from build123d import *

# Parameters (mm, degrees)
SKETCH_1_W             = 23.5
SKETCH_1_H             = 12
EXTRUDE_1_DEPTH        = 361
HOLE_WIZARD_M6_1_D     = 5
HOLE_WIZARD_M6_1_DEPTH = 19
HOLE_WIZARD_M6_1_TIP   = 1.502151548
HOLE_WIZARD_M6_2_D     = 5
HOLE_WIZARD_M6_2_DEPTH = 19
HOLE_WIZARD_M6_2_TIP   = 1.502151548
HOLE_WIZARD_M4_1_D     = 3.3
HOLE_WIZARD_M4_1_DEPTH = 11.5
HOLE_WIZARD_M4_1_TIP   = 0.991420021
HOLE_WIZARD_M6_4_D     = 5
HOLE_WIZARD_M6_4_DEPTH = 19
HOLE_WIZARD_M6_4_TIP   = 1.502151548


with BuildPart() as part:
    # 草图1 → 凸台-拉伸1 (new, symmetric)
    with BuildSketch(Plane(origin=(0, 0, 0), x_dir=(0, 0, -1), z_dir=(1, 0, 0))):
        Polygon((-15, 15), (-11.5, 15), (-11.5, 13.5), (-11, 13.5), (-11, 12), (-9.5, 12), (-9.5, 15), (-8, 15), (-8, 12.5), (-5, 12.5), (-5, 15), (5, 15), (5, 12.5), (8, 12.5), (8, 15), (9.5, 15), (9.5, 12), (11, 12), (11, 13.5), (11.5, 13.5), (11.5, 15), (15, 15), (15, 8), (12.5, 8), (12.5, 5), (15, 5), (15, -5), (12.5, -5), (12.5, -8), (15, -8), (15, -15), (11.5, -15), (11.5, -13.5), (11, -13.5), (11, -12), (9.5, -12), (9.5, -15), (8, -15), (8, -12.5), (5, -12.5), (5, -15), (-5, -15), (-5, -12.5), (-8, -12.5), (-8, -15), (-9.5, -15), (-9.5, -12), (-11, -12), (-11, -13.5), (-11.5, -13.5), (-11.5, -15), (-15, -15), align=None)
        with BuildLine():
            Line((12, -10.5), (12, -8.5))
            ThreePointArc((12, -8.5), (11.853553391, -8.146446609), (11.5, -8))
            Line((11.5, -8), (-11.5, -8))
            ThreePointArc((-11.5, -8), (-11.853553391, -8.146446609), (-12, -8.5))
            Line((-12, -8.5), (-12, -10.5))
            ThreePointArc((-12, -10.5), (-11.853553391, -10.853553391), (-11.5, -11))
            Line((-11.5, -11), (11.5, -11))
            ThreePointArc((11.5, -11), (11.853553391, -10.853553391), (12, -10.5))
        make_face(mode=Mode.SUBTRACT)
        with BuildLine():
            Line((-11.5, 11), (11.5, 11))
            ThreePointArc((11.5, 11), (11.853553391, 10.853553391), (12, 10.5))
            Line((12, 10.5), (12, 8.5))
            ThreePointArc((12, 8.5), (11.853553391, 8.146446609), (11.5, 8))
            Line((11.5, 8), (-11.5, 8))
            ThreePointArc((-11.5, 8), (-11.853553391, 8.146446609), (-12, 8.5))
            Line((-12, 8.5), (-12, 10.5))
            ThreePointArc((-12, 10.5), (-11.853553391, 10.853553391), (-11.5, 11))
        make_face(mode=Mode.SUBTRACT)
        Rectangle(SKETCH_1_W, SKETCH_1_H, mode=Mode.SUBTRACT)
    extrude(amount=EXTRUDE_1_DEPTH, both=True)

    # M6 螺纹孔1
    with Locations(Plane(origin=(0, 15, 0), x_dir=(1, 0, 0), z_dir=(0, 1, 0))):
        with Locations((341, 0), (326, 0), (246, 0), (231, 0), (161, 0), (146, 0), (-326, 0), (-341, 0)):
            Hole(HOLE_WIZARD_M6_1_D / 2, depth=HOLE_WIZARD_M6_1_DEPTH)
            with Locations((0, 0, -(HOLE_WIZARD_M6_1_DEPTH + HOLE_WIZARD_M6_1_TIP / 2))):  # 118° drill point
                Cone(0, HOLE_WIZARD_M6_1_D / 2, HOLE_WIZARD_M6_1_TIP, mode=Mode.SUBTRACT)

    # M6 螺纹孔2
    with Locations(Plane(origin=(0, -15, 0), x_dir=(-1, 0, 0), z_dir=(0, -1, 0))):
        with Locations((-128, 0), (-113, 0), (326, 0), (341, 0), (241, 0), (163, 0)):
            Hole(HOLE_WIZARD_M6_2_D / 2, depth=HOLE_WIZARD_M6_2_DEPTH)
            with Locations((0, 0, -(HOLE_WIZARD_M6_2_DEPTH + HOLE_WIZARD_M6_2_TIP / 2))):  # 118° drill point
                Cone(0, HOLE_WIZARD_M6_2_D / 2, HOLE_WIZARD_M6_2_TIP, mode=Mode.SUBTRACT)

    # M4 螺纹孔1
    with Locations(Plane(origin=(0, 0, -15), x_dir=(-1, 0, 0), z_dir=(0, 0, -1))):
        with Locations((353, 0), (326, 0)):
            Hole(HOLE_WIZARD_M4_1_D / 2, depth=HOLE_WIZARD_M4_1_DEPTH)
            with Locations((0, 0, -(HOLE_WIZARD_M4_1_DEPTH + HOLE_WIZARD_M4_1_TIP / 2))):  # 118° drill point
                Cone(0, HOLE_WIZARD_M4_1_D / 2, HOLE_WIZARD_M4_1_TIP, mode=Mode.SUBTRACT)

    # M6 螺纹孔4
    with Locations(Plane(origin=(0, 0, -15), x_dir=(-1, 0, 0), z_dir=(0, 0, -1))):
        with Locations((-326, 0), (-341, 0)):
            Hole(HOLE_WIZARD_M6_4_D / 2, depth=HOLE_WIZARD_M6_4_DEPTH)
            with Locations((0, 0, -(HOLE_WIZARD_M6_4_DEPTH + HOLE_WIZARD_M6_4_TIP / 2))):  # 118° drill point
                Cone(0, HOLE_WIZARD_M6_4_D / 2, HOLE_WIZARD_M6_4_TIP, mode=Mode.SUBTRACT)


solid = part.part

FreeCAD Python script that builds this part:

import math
import FreeCAD as App
import Part
import Sketcher
Q = App.Units.Quantity


def add_polygon(sketch, points):
    """Adds a closed chain of lines whose ends are joined by coincident constraints."""
    first, n = sketch.GeometryCount, len(points)
    for a, b in zip(points, points[1:] + points[:1]):
        sketch.addGeometry(Part.LineSegment(App.Vector(*a, 0), App.Vector(*b, 0)), False)
    for i in range(n):
        sketch.addConstraint(Sketcher.Constraint("Coincident", first + i, 2, first + (i + 1) % n, 1))

doc = App.newDocument("Part")
body = doc.addObject("PartDesign::Body", "Body")

sketch1 = body.newObject("Sketcher::SketchObject", "Sketch")
sketch1.AttachmentSupport = (doc.getObject("YZ_Plane"), [""])
sketch1.MapMode = "FlatFace"
add_polygon(sketch1, [(15, 11.5), (15, 15), (-15, 15), (-15, 11.5), (-13.5, 11.5), (-13.5, 11), (-12, 11), (-12, 9.5), (-15, 9.5), (-15, 8), (-12.5, 8), (-12.5, 5), (-15, 5), (-15, -5), (-12.5, -5), (-12.5, -8), (-15, -8), (-15, -9.5), (-12, -9.5), (-12, -11), (-13.5, -11), (-13.5, -11.5), (-15, -11.5), (-15, -15), (-8, -15), (-8, -12.5), (-5, -12.5), (-5, -15), (5, -15), (5, -12.5), (8, -12.5), (8, -15), (15, -15), (15, -11.5), (13.5, -11.5), (13.5, -11), (12, -11), (12, -9.5), (15, -9.5), (15, -8), (12.5, -8), (12.5, -5), (15, -5), (15, 5), (12.5, 5), (12.5, 8), (15, 8), (15, 9.5), (12, 9.5), (12, 11), (13.5, 11), (13.5, 11.5)])
sketch1.addGeometry(Part.ArcOfCircle(Part.Circle(App.Vector(-10.5, -11.5, 0), App.Vector(0, 0, 1), 0.5), math.radians(180), math.radians(270)), False)
sketch1.addGeometry(Part.LineSegment(App.Vector(-11, -11.5, 0), App.Vector(-11, 11.5, 0)), False)
sketch1.addGeometry(Part.ArcOfCircle(Part.Circle(App.Vector(-10.5, 11.5, 0), App.Vector(0, 0, 1), 0.5), math.radians(90), math.radians(180)), False)
sketch1.addGeometry(Part.LineSegment(App.Vector(-10.5, 12, 0), App.Vector(-8.5, 12, 0)), False)
sketch1.addGeometry(Part.ArcOfCircle(Part.Circle(App.Vector(-8.5, 11.5, 0), App.Vector(0, 0, 1), 0.5), math.radians(0), math.radians(90)), False)
sketch1.addGeometry(Part.LineSegment(App.Vector(-8, 11.5, 0), App.Vector(-8, -11.5, 0)), False)
sketch1.addGeometry(Part.ArcOfCircle(Part.Circle(App.Vector(-8.5, -11.5, 0), App.Vector(0, 0, 1), 0.5), math.radians(-90), math.radians(0)), False)
sketch1.addGeometry(Part.LineSegment(App.Vector(-8.5, -12, 0), App.Vector(-10.5, -12, 0)), False)
add_polygon(sketch1, [(-6, 11.75), (6, 11.75), (6, -11.75), (-6, -11.75)])
sketch1.addGeometry(Part.LineSegment(App.Vector(11, 11.5, 0), App.Vector(11, -11.5, 0)), False)
sketch1.addGeometry(Part.ArcOfCircle(Part.Circle(App.Vector(10.5, -11.5, 0), App.Vector(0, 0, 1), 0.5), math.radians(-90), math.radians(0)), False)
sketch1.addGeometry(Part.LineSegment(App.Vector(10.5, -12, 0), App.Vector(8.5, -12, 0)), False)
sketch1.addGeometry(Part.ArcOfCircle(Part.Circle(App.Vector(8.5, -11.5, 0), App.Vector(0, 0, 1), 0.5), math.radians(180), math.radians(270)), False)
sketch1.addGeometry(Part.LineSegment(App.Vector(8, -11.5, 0), App.Vector(8, 11.5, 0)), False)
sketch1.addGeometry(Part.ArcOfCircle(Part.Circle(App.Vector(8.5, 11.5, 0), App.Vector(0, 0, 1), 0.5), math.radians(90), math.radians(180)), False)
sketch1.addGeometry(Part.LineSegment(App.Vector(8.5, 12, 0), App.Vector(10.5, 12, 0)), False)
sketch1.addGeometry(Part.ArcOfCircle(Part.Circle(App.Vector(10.5, 11.5, 0), App.Vector(0, 0, 1), 0.5), math.radians(0), math.radians(90)), False)
sketch1.addConstraint(Sketcher.Constraint("Tangent", 52, 1, 53, 1))
sketch1.addConstraint(Sketcher.Constraint("Tangent", 53, 2, 54, 2))
sketch1.addConstraint(Sketcher.Constraint("Tangent", 54, 1, 55, 1))
sketch1.addConstraint(Sketcher.Constraint("Tangent", 55, 2, 56, 2))
sketch1.addConstraint(Sketcher.Constraint("Tangent", 56, 1, 57, 1))
sketch1.addConstraint(Sketcher.Constraint("Tangent", 57, 2, 58, 2))
sketch1.addConstraint(Sketcher.Constraint("Tangent", 58, 1, 59, 1))
sketch1.addConstraint(Sketcher.Constraint("Tangent", 59, 2, 52, 2))
sketch1.addConstraint(Sketcher.Constraint("Tangent", 64, 2, 65, 2))
sketch1.addConstraint(Sketcher.Constraint("Tangent", 65, 1, 66, 1))
sketch1.addConstraint(Sketcher.Constraint("Tangent", 66, 2, 67, 2))
sketch1.addConstraint(Sketcher.Constraint("Tangent", 67, 1, 68, 1))
sketch1.addConstraint(Sketcher.Constraint("Tangent", 68, 2, 69, 2))
sketch1.addConstraint(Sketcher.Constraint("Tangent", 69, 1, 70, 1))
sketch1.addConstraint(Sketcher.Constraint("Tangent", 70, 2, 71, 2))
sketch1.addConstraint(Sketcher.Constraint("Tangent", 71, 1, 64, 1))
sketch1.addConstraint(Sketcher.Constraint("Vertical", 0))
sketch1.addConstraint(Sketcher.Constraint("Horizontal", 1))
sketch1.addConstraint(Sketcher.Constraint("Vertical", 2))
sketch1.addConstraint(Sketcher.Constraint("Horizontal", 3))
sketch1.addConstraint(Sketcher.Constraint("Vertical", 4))
sketch1.addConstraint(Sketcher.Constraint("Horizontal", 5))
sketch1.addConstraint(Sketcher.Constraint("Vertical", 6))
sketch1.addConstraint(Sketcher.Constraint("Horizontal", 7))
sketch1.addConstraint(Sketcher.Constraint("Vertical", 8))
sketch1.addConstraint(Sketcher.Constraint("Horizontal", 9))
sketch1.addConstraint(Sketcher.Constraint("Vertical", 10))
sketch1.addConstraint(Sketcher.Constraint("Horizontal", 11))
sketch1.addConstraint(Sketcher.Constraint("Vertical", 12))
sketch1.addConstraint(Sketcher.Constraint("Horizontal", 13))
sketch1.addConstraint(Sketcher.Constraint("Vertical", 14))
sketch1.addConstraint(Sketcher.Constraint("Horizontal", 15))
sketch1.addConstraint(Sketcher.Constraint("Vertical", 16))
sketch1.addConstraint(Sketcher.Constraint("Horizontal", 17))
sketch1.addConstraint(Sketcher.Constraint("Vertical", 18))
sketch1.addConstraint(Sketcher.Constraint("Horizontal", 19))
sketch1.addConstraint(Sketcher.Constraint("Vertical", 20))
sketch1.addConstraint(Sketcher.Constraint("Horizontal", 21))
sketch1.addConstraint(Sketcher.Constraint("Vertical", 22))
sketch1.addConstraint(Sketcher.Constraint("Horizontal", 23))
sketch1.addConstraint(Sketcher.Constraint("Vertical", 24))
sketch1.addConstraint(Sketcher.Constraint("Horizontal", 25))
sketch1.addConstraint(Sketcher.Constraint("Vertical", 26))
sketch1.addConstraint(Sketcher.Constraint("Horizontal", 27))
sketch1.addConstraint(Sketcher.Constraint("Vertical", 28))
sketch1.addConstraint(Sketcher.Constraint("Horizontal", 29))
sketch1.addConstraint(Sketcher.Constraint("Vertical", 30))
sketch1.addConstraint(Sketcher.Constraint("Horizontal", 31))
sketch1.addConstraint(Sketcher.Constraint("Vertical", 32))
sketch1.addConstraint(Sketcher.Constraint("Horizontal", 33))
sketch1.addConstraint(Sketcher.Constraint("Vertical", 34))
sketch1.addConstraint(Sketcher.Constraint("Horizontal", 35))
sketch1.addConstraint(Sketcher.Constraint("Vertical", 36))
sketch1.addConstraint(Sketcher.Constraint("Horizontal", 37))
sketch1.addConstraint(Sketcher.Constraint("Vertical", 38))
sketch1.addConstraint(Sketcher.Constraint("Horizontal", 39))
sketch1.addConstraint(Sketcher.Constraint("Vertical", 40))
sketch1.addConstraint(Sketcher.Constraint("Horizontal", 41))
sketch1.addConstraint(Sketcher.Constraint("Vertical", 42))
sketch1.addConstraint(Sketcher.Constraint("Horizontal", 43))
sketch1.addConstraint(Sketcher.Constraint("Vertical", 44))
sketch1.addConstraint(Sketcher.Constraint("Horizontal", 45))
sketch1.addConstraint(Sketcher.Constraint("Vertical", 46))
sketch1.addConstraint(Sketcher.Constraint("Horizontal", 47))
sketch1.addConstraint(Sketcher.Constraint("Vertical", 48))
sketch1.addConstraint(Sketcher.Constraint("Horizontal", 49))
sketch1.addConstraint(Sketcher.Constraint("Vertical", 50))
sketch1.addConstraint(Sketcher.Constraint("Horizontal", 51))
sketch1.addConstraint(Sketcher.Constraint("Vertical", 53))
sketch1.addConstraint(Sketcher.Constraint("Horizontal", 55))
sketch1.addConstraint(Sketcher.Constraint("Vertical", 57))
sketch1.addConstraint(Sketcher.Constraint("Horizontal", 59))
sketch1.addConstraint(Sketcher.Constraint("Horizontal", 60))
sketch1.addConstraint(Sketcher.Constraint("Vertical", 61))
sketch1.addConstraint(Sketcher.Constraint("Horizontal", 62))
sketch1.addConstraint(Sketcher.Constraint("Vertical", 63))
sketch1.addConstraint(Sketcher.Constraint("Vertical", 64))
sketch1.addConstraint(Sketcher.Constraint("Horizontal", 66))
sketch1.addConstraint(Sketcher.Constraint("Vertical", 68))
sketch1.addConstraint(Sketcher.Constraint("Horizontal", 70))
sketch1.addConstraint(Sketcher.Constraint("Equal", 52, 54))
sketch1.addConstraint(Sketcher.Constraint("Equal", 54, 56))
sketch1.addConstraint(Sketcher.Constraint("Equal", 56, 58))
sketch1.addConstraint(Sketcher.Constraint("Equal", 58, 65))
sketch1.addConstraint(Sketcher.Constraint("Equal", 65, 67))
sketch1.addConstraint(Sketcher.Constraint("Equal", 67, 69))
sketch1.addConstraint(Sketcher.Constraint("Equal", 69, 71))
sketch1.addConstraint(Sketcher.Constraint("Symmetric", 54, 3, 65, 3, -1, 1))
sketch1.addConstraint(Sketcher.Constraint("Symmetric", 58, 3, 69, 3, -1, 1))
sketch1.addConstraint(Sketcher.Constraint("Symmetric", 0, 2, 22, 2, -1, 1))
sketch1.addConstraint(Sketcher.Constraint("Symmetric", 1, 2, 31, 2, -1, 1))
sketch1.addConstraint(Sketcher.Constraint("Symmetric", 3, 2, 33, 2, -1, 1))
sketch1.addConstraint(Sketcher.Constraint("Symmetric", 5, 2, 35, 2, -1, 1))
sketch1.addConstraint(Sketcher.Constraint("Symmetric", 7, 2, 37, 2, -1, 1))
sketch1.addConstraint(Sketcher.Constraint("Symmetric", 9, 2, 39, 2, -1, 1))
sketch1.addConstraint(Sketcher.Constraint("Symmetric", 11, 2, 41, 2, -1, 1))
sketch1.addConstraint(Sketcher.Constraint("Symmetric", 13, 2, 43, 2, -1, 1))
sketch1.addConstraint(Sketcher.Constraint("Symmetric", 15, 2, 45, 2, -1, 1))
sketch1.addConstraint(Sketcher.Constraint("Symmetric", 17, 2, 47, 2, -1, 1))
sketch1.addConstraint(Sketcher.Constraint("Symmetric", 19, 2, 49, 2, -1, 1))
sketch1.addConstraint(Sketcher.Constraint("Symmetric", 60, 2, 62, 2, -1, 1))
sketch1.addConstraint(Sketcher.Constraint("Symmetric", 25, 2, 28, 2, -2))
sketch1.addConstraint(Sketcher.Constraint("Symmetric", 21, 2, 32, 2, -2))
sketch1.addConstraint(Sketcher.Constraint("Symmetric", 19, 2, 34, 2, -2))
sketch1.addConstraint(Sketcher.Constraint("Symmetric", 17, 2, 36, 2, -2))
sketch1.addConstraint(Sketcher.Constraint("Symmetric", 15, 2, 38, 2, -2))
sketch1.addConstraint(Sketcher.Constraint("Symmetric", 13, 2, 40, 2, -2))
sketch1.addConstraint(Sketcher.Constraint("Horizontal", 58, 3, 65, 3))
sketch1.addConstraint(Sketcher.Constraint("Horizontal", 71, 3, 2, 2))
sketch1.addConstraint(Sketcher.Constraint("Horizontal", 23, 2, 26, 2))
sketch1.addConstraint(Sketcher.Constraint("Horizontal", 3, 2, 50, 2))
sketch1.addConstraint(Sketcher.Constraint("Vertical", 2, 2, 7, 2))
sketch1.addConstraint(Sketcher.Constraint("Vertical", 8, 2, 11, 2))
sketch1.addConstraint(Sketcher.Constraint("Vertical", 24, 2, 56, 1))
sketch1.addConstraint(Sketcher.Constraint("Vertical", 30, 2, 67, 1))
sketch1.addConstraint(Sketcher.Constraint("Equal", 3, 5))
sketch1.addConstraint(Sketcher.Constraint("Equal", 17, 25))
sketch1.addConstraint(Sketcher.Constraint("Equal", 51, 6))
sketch1.addConstraint(Sketcher.Constraint("Equal", 6, 8))
sketch1.addConstraint(Sketcher.Constraint("Equal", 47, 10))
sketch1.addConstraint(Sketcher.Constraint("Equal", 27, 12))
sketch1.addConstraint(Sketcher.Constraint("Equal", 45, 24))
sketch1.addConstraint(Sketcher.Constraint("Radius", 52, Q("0.5 mm")))
sketch1.addConstraint(Sketcher.Constraint("DistanceX", 1, 2, 1, 1, Q("30 mm")))
sketch1.addConstraint(Sketcher.Constraint("DistanceX", 7, 2, 7, 1, Q("3 mm")))
sketch1.addConstraint(Sketcher.Constraint("DistanceX", 23, 1, 23, 2, Q("7 mm")))
sketch1.addConstraint(Sketcher.Constraint("DistanceX", 55, 1, 55, 2, Q("2 mm")))
sketch1.addConstraint(Sketcher.Constraint("DistanceX", 60, 1, 60, 2, Q("12 mm")))
sketch1.addConstraint(Sketcher.Constraint("DistanceY", 53, 1, 53, 2, Q("23 mm")))
sketch1.addConstraint(Sketcher.Constraint("DistanceX", 9, 1, 9, 2, Q("2.5 mm")))
sketch1.addConstraint(Sketcher.Constraint("DistanceY", 0, 1, 0, 2, Q("3.5 mm")))
sketch1.addConstraint(Sketcher.Constraint("DistanceY", 61, 2, 61, 1, Q("23.5 mm")))
pad1 = body.newObject("PartDesign::Pad", "Pad")
pad1.Profile = sketch1
pad1.Length = 722
pad1.Midplane = True

sketch2 = body.newObject("Sketcher::SketchObject", "Sketch001")
sketch2.AttachmentSupport = (doc.getObject("XZ_Plane"), [""])
sketch2.MapMode = "FlatFace"
sketch2.AttachmentOffset = App.Placement(App.Vector(0, 0, -15), App.Rotation())
sketch2.addGeometry(Part.Circle(App.Vector(341, 0, 0), App.Vector(0, 0, 1), 2.5), False)
sketch2.addGeometry(Part.Circle(App.Vector(326, 0, 0), App.Vector(0, 0, 1), 2.5), False)
sketch2.addGeometry(Part.Circle(App.Vector(246, 0, 0), App.Vector(0, 0, 1), 2.5), False)
sketch2.addGeometry(Part.Circle(App.Vector(231, 0, 0), App.Vector(0, 0, 1), 2.5), False)
sketch2.addGeometry(Part.Circle(App.Vector(161, 0, 0), App.Vector(0, 0, 1), 2.5), False)
sketch2.addGeometry(Part.Circle(App.Vector(146, 0, 0), App.Vector(0, 0, 1), 2.5), False)
sketch2.addGeometry(Part.Circle(App.Vector(-326, 0, 0), App.Vector(0, 0, 1), 2.5), False)
sketch2.addGeometry(Part.Circle(App.Vector(-341, 0, 0), App.Vector(0, 0, 1), 2.5), False)
sketch2.addConstraint(Sketcher.Constraint("Equal", 0, 1))
sketch2.addConstraint(Sketcher.Constraint("Equal", 1, 2))
sketch2.addConstraint(Sketcher.Constraint("Equal", 2, 3))
sketch2.addConstraint(Sketcher.Constraint("Equal", 3, 4))
sketch2.addConstraint(Sketcher.Constraint("Equal", 4, 5))
sketch2.addConstraint(Sketcher.Constraint("Equal", 5, 6))
sketch2.addConstraint(Sketcher.Constraint("Equal", 6, 7))
sketch2.addConstraint(Sketcher.Constraint("Symmetric", 1, 3, 6, 3, -1, 1))
sketch2.addConstraint(Sketcher.Constraint("Symmetric", 0, 3, 7, 3, -1, 1))
sketch2.addConstraint(Sketcher.Constraint("PointOnObject", 0, 3, -1))
sketch2.addConstraint(Sketcher.Constraint("PointOnObject", 1, 3, -1))
sketch2.addConstraint(Sketcher.Constraint("PointOnObject", 2, 3, -1))
sketch2.addConstraint(Sketcher.Constraint("PointOnObject", 3, 3, -1))
sketch2.addConstraint(Sketcher.Constraint("PointOnObject", 4, 3, -1))
sketch2.addConstraint(Sketcher.Constraint("PointOnObject", 5, 3, -1))
sketch2.addConstraint(Sketcher.Constraint("Diameter", 0, Q("5 mm")))
sketch2.addConstraint(Sketcher.Constraint("DistanceX", -1, 1, 0, 3, Q("341 mm")))
sketch2.addConstraint(Sketcher.Constraint("DistanceX", -1, 1, 1, 3, Q("326 mm")))
sketch2.addConstraint(Sketcher.Constraint("DistanceX", -1, 1, 2, 3, Q("246 mm")))
sketch2.addConstraint(Sketcher.Constraint("DistanceX", -1, 1, 3, 3, Q("231 mm")))
sketch2.addConstraint(Sketcher.Constraint("DistanceX", -1, 1, 4, 3, Q("161 mm")))
sketch2.addConstraint(Sketcher.Constraint("DistanceX", -1, 1, 5, 3, Q("146 mm")))
doc.recompute()
hole = body.newObject("PartDesign::Hole", "Hole")
hole.Profile = sketch2
hole.ThreadType = "None"
hole.Diameter = 5
hole.DepthType = "Dimension"
hole.Depth = 19
hole.DrillPoint = "Angled"
hole.DrillPointAngle = 118
hole.Reversed = True

sketch3 = body.newObject("Sketcher::SketchObject", "Sketch002")
sketch3.AttachmentSupport = (doc.getObject("XZ_Plane"), [""])
sketch3.MapMode = "FlatFace"
sketch3.AttachmentOffset = App.Placement(App.Vector(0, 0, 15), App.Rotation())
sketch3.addGeometry(Part.Circle(App.Vector(128, 0, 0), App.Vector(0, 0, 1), 2.5), False)
sketch3.addGeometry(Part.Circle(App.Vector(113, 0, 0), App.Vector(0, 0, 1), 2.5), False)
sketch3.addGeometry(Part.Circle(App.Vector(-326, 0, 0), App.Vector(0, 0, 1), 2.5), False)
sketch3.addGeometry(Part.Circle(App.Vector(-341, 0, 0), App.Vector(0, 0, 1), 2.5), False)
sketch3.addGeometry(Part.Circle(App.Vector(-241, 0, 0), App.Vector(0, 0, 1), 2.5), False)
sketch3.addGeometry(Part.Circle(App.Vector(-163, 0, 0), App.Vector(0, 0, 1), 2.5), False)
sketch3.addConstraint(Sketcher.Constraint("Equal", 0, 1))
sketch3.addConstraint(Sketcher.Constraint("Equal", 1, 2))
sketch3.addConstraint(Sketcher.Constraint("Equal", 2, 3))
sketch3.addConstraint(Sketcher.Constraint("Equal", 3, 4))
sketch3.addConstraint(Sketcher.Constraint("Equal", 4, 5))
sketch3.addConstraint(Sketcher.Constraint("PointOnObject", 0, 3, -1))
sketch3.addConstraint(Sketcher.Constraint("PointOnObject", 1, 3, -1))
sketch3.addConstraint(Sketcher.Constraint("PointOnObject", 2, 3, -1))
sketch3.addConstraint(Sketcher.Constraint("PointOnObject", 3, 3, -1))
sketch3.addConstraint(Sketcher.Constraint("PointOnObject", 4, 3, -1))
sketch3.addConstraint(Sketcher.Constraint("PointOnObject", 5, 3, -1))
sketch3.addConstraint(Sketcher.Constraint("Diameter", 0, Q("5 mm")))
sketch3.addConstraint(Sketcher.Constraint("DistanceX", -1, 1, 0, 3, Q("128 mm")))
sketch3.addConstraint(Sketcher.Constraint("DistanceX", -1, 1, 1, 3, Q("113 mm")))
sketch3.addConstraint(Sketcher.Constraint("DistanceX", 2, 3, -1, 1, Q("326 mm")))
sketch3.addConstraint(Sketcher.Constraint("DistanceX", 3, 3, -1, 1, Q("341 mm")))
sketch3.addConstraint(Sketcher.Constraint("DistanceX", 4, 3, -1, 1, Q("241 mm")))
sketch3.addConstraint(Sketcher.Constraint("DistanceX", 5, 3, -1, 1, Q("163 mm")))
doc.recompute()
hole2 = body.newObject("PartDesign::Hole", "Hole001")
hole2.Profile = sketch3
hole2.ThreadType = "None"
hole2.Diameter = 5
hole2.DepthType = "Dimension"
hole2.Depth = 19
hole2.DrillPoint = "Angled"
hole2.DrillPointAngle = 118

sketch4 = body.newObject("Sketcher::SketchObject", "Sketch003")
sketch4.AttachmentSupport = (doc.getObject("XY_Plane"), [""])
sketch4.MapMode = "FlatFace"
sketch4.AttachmentOffset = App.Placement(App.Vector(0, 0, -15), App.Rotation())
sketch4.addGeometry(Part.Circle(App.Vector(-353, 0, 0), App.Vector(0, 0, 1), 1.6), False)
sketch4.addGeometry(Part.Circle(App.Vector(-326, 0, 0), App.Vector(0, 0, 1), 1.6), False)
sketch4.addConstraint(Sketcher.Constraint("Equal", 0, 1))
sketch4.addConstraint(Sketcher.Constraint("PointOnObject", 0, 3, -1))
sketch4.addConstraint(Sketcher.Constraint("PointOnObject", 1, 3, -1))
sketch4.addConstraint(Sketcher.Constraint("Diameter", 0, Q("3.3 mm")))
sketch4.addConstraint(Sketcher.Constraint("DistanceX", 0, 3, -1, 1, Q("353 mm")))
sketch4.addConstraint(Sketcher.Constraint("DistanceX", 1, 3, -1, 1, Q("326 mm")))
doc.recompute()
hole3 = body.newObject("PartDesign::Hole", "Hole002")
hole3.Profile = sketch4
hole3.ThreadType = "None"
hole3.Diameter = 3.3
hole3.DepthType = "Dimension"
hole3.Depth = 11.5
hole3.DrillPoint = "Angled"
hole3.DrillPointAngle = 118
hole3.Reversed = True

sketch5 = body.newObject("Sketcher::SketchObject", "Sketch004")
sketch5.AttachmentSupport = (doc.getObject("XY_Plane"), [""])
sketch5.MapMode = "FlatFace"
sketch5.AttachmentOffset = App.Placement(App.Vector(0, 0, -15), App.Rotation())
sketch5.addGeometry(Part.Circle(App.Vector(326, 0, 0), App.Vector(0, 0, 1), 2.5), False)
sketch5.addGeometry(Part.Circle(App.Vector(341, 0, 0), App.Vector(0, 0, 1), 2.5), False)
sketch5.addConstraint(Sketcher.Constraint("Equal", 0, 1))
sketch5.addConstraint(Sketcher.Constraint("PointOnObject", 0, 3, -1))
sketch5.addConstraint(Sketcher.Constraint("PointOnObject", 1, 3, -1))
sketch5.addConstraint(Sketcher.Constraint("Diameter", 0, Q("5 mm")))
sketch5.addConstraint(Sketcher.Constraint("DistanceX", -1, 1, 0, 3, Q("326 mm")))
sketch5.addConstraint(Sketcher.Constraint("DistanceX", -1, 1, 1, 3, Q("341 mm")))
doc.recompute()
hole4 = body.newObject("PartDesign::Hole", "Hole003")
hole4.Profile = sketch5
hole4.ThreadType = "None"
hole4.Diameter = 5
hole4.DepthType = "Dimension"
hole4.Depth = 19
hole4.DrillPoint = "Angled"
hole4.DrillPointAngle = 118
hole4.Reversed = True

doc.recompute()
